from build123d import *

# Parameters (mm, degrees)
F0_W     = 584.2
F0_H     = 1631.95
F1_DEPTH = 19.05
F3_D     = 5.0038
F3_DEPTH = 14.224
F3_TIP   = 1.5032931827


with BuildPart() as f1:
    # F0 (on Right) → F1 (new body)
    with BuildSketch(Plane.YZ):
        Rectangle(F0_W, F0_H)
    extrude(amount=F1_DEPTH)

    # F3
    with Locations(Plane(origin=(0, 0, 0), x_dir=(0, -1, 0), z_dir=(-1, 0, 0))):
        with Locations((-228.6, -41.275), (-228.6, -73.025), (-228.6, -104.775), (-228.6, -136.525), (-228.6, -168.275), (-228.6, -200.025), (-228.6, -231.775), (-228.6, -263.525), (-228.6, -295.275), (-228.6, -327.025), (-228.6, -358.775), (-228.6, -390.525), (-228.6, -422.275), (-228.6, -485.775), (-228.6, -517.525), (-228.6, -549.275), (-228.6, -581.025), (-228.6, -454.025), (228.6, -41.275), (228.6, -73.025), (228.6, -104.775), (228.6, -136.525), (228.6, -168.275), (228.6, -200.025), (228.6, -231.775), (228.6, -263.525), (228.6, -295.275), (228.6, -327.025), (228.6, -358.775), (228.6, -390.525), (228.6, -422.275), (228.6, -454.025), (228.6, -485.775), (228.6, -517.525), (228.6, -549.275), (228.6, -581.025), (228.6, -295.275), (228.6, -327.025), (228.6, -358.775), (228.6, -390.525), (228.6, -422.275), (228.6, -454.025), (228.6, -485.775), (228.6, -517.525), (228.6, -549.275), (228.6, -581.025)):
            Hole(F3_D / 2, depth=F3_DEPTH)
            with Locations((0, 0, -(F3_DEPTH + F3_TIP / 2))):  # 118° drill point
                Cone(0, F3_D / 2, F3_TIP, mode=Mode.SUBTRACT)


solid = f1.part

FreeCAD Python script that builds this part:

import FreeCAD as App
import Part
import Sketcher
from FreeCAD import Vector
Q = App.Units.Quantity

doc = App.newDocument("Part")
body = doc.addObject("PartDesign::Body", "Body")

# Sketch on YZ plane
sketch1 = body.newObject("Sketcher::SketchObject", "Sketch")
sketch1.AttachmentSupport = (doc.getObject("YZ_Plane"), [""])
sketch1.MapMode = "FlatFace"
sketch1.addGeometry([
    Part.LineSegment(Vector(-292.1, 815.975, 0), Vector(-292.1, -815.975, 0)),
    Part.LineSegment(Vector(-292.1, -815.975, 0), Vector(292.1, -815.975, 0)),
    Part.LineSegment(Vector(292.1, -815.975, 0), Vector(292.1, 815.975, 0)),
    Part.LineSegment(Vector(292.1, 815.975, 0), Vector(-292.1, 815.975, 0)),
], False)
sketch1.addConstraint([
    Sketcher.Constraint("Coincident", 0, 2, 1, 1),
    Sketcher.Constraint("Coincident", 1, 2, 2, 1),
    Sketcher.Constraint("Coincident", 2, 2, 3, 1),
    Sketcher.Constraint("Coincident", 3, 2, 0, 1),
    Sketcher.Constraint("Vertical", 0),
    Sketcher.Constraint("Horizontal", 1),
    Sketcher.Constraint("Vertical", 2),
    Sketcher.Constraint("Horizontal", 3),
    Sketcher.Constraint("Symmetric", 0, 2, 2, 2, -1, 1),
    Sketcher.Constraint("DistanceX", 1, 1, 1, 2, Q("23 in")),
    Sketcher.Constraint("DistanceY", 0, 2, 0, 1, Q("64.25 in")),
])
pad1 = body.newObject("PartDesign::Pad", "Pad")
pad1.Profile = sketch1
pad1.Length = Q("0.75 in")

# Sketch on YZ plane
sketch2 = body.newObject("Sketcher::SketchObject", "Sketch001")
sketch2.AttachmentSupport = (doc.getObject("YZ_Plane"), [""])
sketch2.MapMode = "FlatFace"
sketch2.addGeometry([
    Part.Circle(Vector(228.6, -41.275, 0), Vector(0, 0, 1), 2.5019),  # 0
    Part.Circle(Vector(228.6, -73.025, 0), Vector(0, 0, 1), 2.5019),  # 1
    Part.Circle(Vector(228.6, -104.775, 0), Vector(0, 0, 1), 2.5019),  # 2
    Part.Circle(Vector(228.6, -136.525, 0), Vector(0, 0, 1), 2.5019),  # 3
    Part.Circle(Vector(228.6, -168.275, 0), Vector(0, 0, 1), 2.5019),  # 4
    Part.Circle(Vector(228.6, -200.025, 0), Vector(0, 0, 1), 2.5019),  # 5
    Part.Circle(Vector(228.6, -231.775, 0), Vector(0, 0, 1), 2.5019),  # 6
    Part.Circle(Vector(228.6, -263.525, 0), Vector(0, 0, 1), 2.5019),  # 7
    Part.Circle(Vector(228.6, -295.275, 0), Vector(0, 0, 1), 2.5019),  # 8
    Part.Circle(Vector(228.6, -327.025, 0), Vector(0, 0, 1), 2.5019),  # 9
    Part.Circle(Vector(228.6, -358.775, 0), Vector(0, 0, 1), 2.5019),  # 10
    Part.Circle(Vector(228.6, -390.525, 0), Vector(0, 0, 1), 2.5019),  # 11
    Part.Circle(Vector(228.6, -422.275, 0), Vector(0, 0, 1), 2.5019),  # 12
    Part.Circle(Vector(228.6, -485.775, 0), Vector(0, 0, 1), 2.5019),  # 13
    Part.Circle(Vector(228.6, -517.525, 0), Vector(0, 0, 1), 2.5019),  # 14
    Part.Circle(Vector(228.6, -549.275, 0), Vector(0, 0, 1), 2.5019),  # 15
    Part.Circle(Vector(228.6, -581.025, 0), Vector(0, 0, 1), 2.5019),  # 16
    Part.Circle(Vector(228.6, -454.025, 0), Vector(0, 0, 1), 2.5019),  # 17
    Part.Circle(Vector(-228.6, -41.275, 0), Vector(0, 0, 1), 2.5019),  # 18
    Part.Circle(Vector(-228.6, -73.025, 0), Vector(0, 0, 1), 2.5019),  # 19
    Part.Circle(Vector(-228.6, -104.775, 0), Vector(0, 0, 1), 2.5019),  # 20
    Part.Circle(Vector(-228.6, -136.525, 0), Vector(0, 0, 1), 2.5019),  # 21
    Part.Circle(Vector(-228.6, -168.275, 0), Vector(0, 0, 1), 2.5019),  # 22
    Part.Circle(Vector(-228.6, -200.025, 0), Vector(0, 0, 1), 2.5019),  # 23
    Part.Circle(Vector(-228.6, -231.775, 0), Vector(0, 0, 1), 2.5019),  # 24
    Part.Circle(Vector(-228.6, -263.525, 0), Vector(0, 0, 1), 2.5019),  # 25
    Part.Circle(Vector(-228.6, -295.275, 0), Vector(0, 0, 1), 2.5019),  # 26
    Part.Circle(Vector(-228.6, -327.025, 0), Vector(0, 0, 1), 2.5019),  # 27
    Part.Circle(Vector(-228.6, -358.775, 0), Vector(0, 0, 1), 2.5019),  # 28
    Part.Circle(Vector(-228.6, -390.525, 0), Vector(0, 0, 1), 2.5019),  # 29
    Part.Circle(Vector(-228.6, -422.275, 0), Vector(0, 0, 1), 2.5019),  # 30
    Part.Circle(Vector(-228.6, -454.025, 0), Vector(0, 0, 1), 2.5019),  # 31
    Part.Circle(Vector(-228.6, -485.775, 0), Vector(0, 0, 1), 2.5019),  # 32
    Part.Circle(Vector(-228.6, -517.525, 0), Vector(0, 0, 1), 2.5019),  # 33
    Part.Circle(Vector(-228.6, -549.275, 0), Vector(0, 0, 1), 2.5019),  # 34
    Part.Circle(Vector(-228.6, -581.025, 0), Vector(0, 0, 1), 2.5019),  # 35
    Part.Circle(Vector(-228.6, -295.275, 0), Vector(0, 0, 1), 2.5019),  # 36
    Part.Circle(Vector(-228.6, -327.025, 0), Vector(0, 0, 1), 2.5019),  # 37
    Part.Circle(Vector(-228.6, -358.775, 0), Vector(0, 0, 1), 2.5019),  # 38
    Part.Circle(Vector(-228.6, -390.525, 0), Vector(0, 0, 1), 2.5019),  # 39
    Part.Circle(Vector(-228.6, -422.275, 0), Vector(0, 0, 1), 2.5019),  # 40
    Part.Circle(Vector(-228.6, -454.025, 0), Vector(0, 0, 1), 2.5019),  # 41
    Part.Circle(Vector(-228.6, -485.775, 0), Vector(0, 0, 1), 2.5019),  # 42
    Part.Circle(Vector(-228.6, -517.525, 0), Vector(0, 0, 1), 2.5019),  # 43
    Part.Circle(Vector(-228.6, -549.275, 0), Vector(0, 0, 1), 2.5019),  # 44
    Part.Circle(Vector(-228.6, -581.025, 0), Vector(0, 0, 1), 2.5019),  # 45
], False)
sketch2.addConstraint([
    Sketcher.Constraint("Coincident", 36, 3, 26, 3),
    Sketcher.Constraint("Coincident", 37, 3, 27, 3),
    Sketcher.Constraint("Coincident", 38, 3, 28, 3),
    Sketcher.Constraint("Coincident", 39, 3, 29, 3),
    Sketcher.Constraint("Coincident", 40, 3, 30, 3),
    Sketcher.Constraint("Coincident", 41, 3, 31, 3),
    Sketcher.Constraint("Coincident", 42, 3, 32, 3),
    Sketcher.Constraint("Coincident", 43, 3, 33, 3),
    Sketcher.Constraint("Coincident", 44, 3, 34, 3),
    Sketcher.Constraint("Coincident", 45, 3, 35, 3),
    Sketcher.Constraint("Equal", 0, 1),
    Sketcher.Constraint("Equal", 1, 2),
    Sketcher.Constraint("Equal", 2, 3),
    Sketcher.Constraint("Equal", 3, 4),
    Sketcher.Constraint("Equal", 4, 5),
    Sketcher.Constraint("Equal", 5, 6),
    Sketcher.Constraint("Equal", 6, 7),
    Sketcher.Constraint("Equal", 7, 8),
    Sketcher.Constraint("Equal", 8, 9),
    Sketcher.Constraint("Equal", 9, 10),
    Sketcher.Constraint("Equal", 10, 11),
    Sketcher.Constraint("Equal", 11, 12),
    Sketcher.Constraint("Equal", 12, 13),
    Sketcher.Constraint("Equal", 13, 14),
    Sketcher.Constraint("Equal", 14, 15),
    Sketcher.Constraint("Equal", 15, 16),
    Sketcher.Constraint("Equal", 16, 17),
    Sketcher.Constraint("Equal", 17, 18),
    Sketcher.Constraint("Equal", 18, 19),
    Sketcher.Constraint("Equal", 19, 20),
    Sketcher.Constraint("Equal", 20, 21),
    Sketcher.Constraint("Equal", 21, 22),
    Sketcher.Constraint("Equal", 22, 23),
    Sketcher.Constraint("Equal", 23, 24),
    Sketcher.Constraint("Equal", 24, 25),
    Sketcher.Constraint("Equal", 25, 26),
    Sketcher.Constraint("Equal", 26, 27),
    Sketcher.Constraint("Equal", 27, 28),
    Sketcher.Constraint("Equal", 28, 29),
    Sketcher.Constraint("Equal", 29, 30),
    Sketcher.Constraint("Equal", 30, 31),
    Sketcher.Constraint("Equal", 31, 32),
    Sketcher.Constraint("Equal", 32, 33),
    Sketcher.Constraint("Equal", 33, 34),
    Sketcher.Constraint("Equal", 34, 35),
    Sketcher.Constraint("Equal", 35, 36),
    Sketcher.Constraint("Equal", 36, 37),
    Sketcher.Constraint("Equal", 37, 38),
    Sketcher.Constraint("Equal", 38, 39),
    Sketcher.Constraint("Equal", 39, 40),
    Sketcher.Constraint("Equal", 40, 41),
    Sketcher.Constraint("Equal", 41, 42),
    Sketcher.Constraint("Equal", 42, 43),
    Sketcher.Constraint("Equal", 43, 44),
    Sketcher.Constraint("Equal", 44, 45),
    Sketcher.Constraint("Symmetric", 0, 3, 18, 3, -2),
    Sketcher.Constraint("Symmetric", 1, 3, 19, 3, -2),
    Sketcher.Constraint("Symmetric", 2, 3, 20, 3, -2),
    Sketcher.Constraint("Symmetric", 3, 3, 21, 3, -2),
    Sketcher.Constraint("Symmetric", 4, 3, 22, 3, -2),
    Sketcher.Constraint("Symmetric", 5, 3, 23, 3, -2),
    Sketcher.Constraint("Symmetric", 6, 3, 24, 3, -2),
    Sketcher.Constraint("Symmetric", 7, 3, 25, 3, -2),
    Sketcher.Constraint("Symmetric", 8, 3, 26, 3, -2),
    Sketcher.Constraint("Symmetric", 9, 3, 27, 3, -2),
    Sketcher.Constraint("Symmetric", 10, 3, 28, 3, -2),
    Sketcher.Constraint("Symmetric", 11, 3, 29, 3, -2),
    Sketcher.Constraint("Symmetric", 12, 3, 30, 3, -2),
    Sketcher.Constraint("Symmetric", 17, 3, 31, 3, -2),
    Sketcher.Constraint("Symmetric", 13, 3, 32, 3, -2),
    Sketcher.Constraint("Symmetric", 14, 3, 33, 3, -2),
    Sketcher.Constraint("Symmetric", 15, 3, 34, 3, -2),
    Sketcher.Constraint("Symmetric", 16, 3, 35, 3, -2),
    Sketcher.Constraint("Vertical", 0, 3, 1, 3),
    Sketcher.Constraint("Vertical", 1, 3, 2, 3),
    Sketcher.Constraint("Vertical", 2, 3, 3, 3),
    Sketcher.Constraint("Vertical", 3, 3, 4, 3),
    Sketcher.Constraint("Vertical", 4, 3, 5, 3),
    Sketcher.Constraint("Vertical", 5, 3, 6, 3),
    Sketcher.Constraint("Vertical", 6, 3, 7, 3),
    Sketcher.Constraint("Vertical", 7, 3, 8, 3),
    Sketcher.Constraint("Vertical", 8, 3, 9, 3),
    Sketcher.Constraint("Vertical", 9, 3, 10, 3),
    Sketcher.Constraint("Vertical", 10, 3, 11, 3),
    Sketcher.Constraint("Vertical", 11, 3, 12, 3),
    Sketcher.Constraint("Vertical", 12, 3, 13, 3),
    Sketcher.Constraint("Vertical", 13, 3, 14, 3),
    Sketcher.Constraint("Vertical", 14, 3, 15, 3),
    Sketcher.Constraint("Vertical", 15, 3, 16, 3),
    Sketcher.Constraint("Vertical", 16, 3, 17, 3),
    Sketcher.Constraint("Diameter", 0, Q("0.197 in")),
    Sketcher.Constraint("DistanceX", -1, 1, 0, 3, Q("9 in")),
    Sketcher.Constraint("DistanceY", 4, 3, 0, 3, Q("5 in")),
    Sketcher.Constraint("DistanceY", 5, 3, 1, 3, Q("5 in")),
    Sketcher.Constraint("DistanceY", 6, 3, 2, 3, Q("5 in")),
    Sketcher.Constraint("DistanceY", 7, 3, 3, 3, Q("5 in")),
    Sketcher.Constraint("DistanceY", 8, 3, 4, 3, Q("5 in")),
    Sketcher.Constraint("DistanceY", 9, 3, 5, 3, Q("5 in")),
    Sketcher.Constraint("DistanceY", 10, 3, 6, 3, Q("5 in")),
    Sketcher.Constraint("DistanceY", 11, 3, 7, 3, Q("5 in")),
    Sketcher.Constraint("DistanceY", 12, 3, 8, 3, Q("5 in")),
    Sketcher.Constraint("DistanceY", 13, 3, 10, 3, Q("5 in")),
    Sketcher.Constraint("DistanceY", 14, 3, 11, 3, Q("5 in")),
    Sketcher.Constraint("DistanceY", 15, 3, 12, 3, Q("5 in")),
    Sketcher.Constraint("DistanceY", 31, 3, 27, 3, Q("5 in")),
    Sketcher.Constraint("DistanceY", 35, 3, 31, 3, Q("5 in")),
    Sketcher.Constraint("DistanceY", 2, 3, 0, 3, Q("2.5 in")),
    Sketcher.Constraint("DistanceY", 3, 3, 1, 3, Q("2.5 in")),
    Sketcher.Constraint("DistanceY", 1, 3, 0, 3, Q("1.25 in")),
    Sketcher.Constraint("DistanceY", 0, 3, -1, 1, Q("1.625 in")),
])
doc.recompute()
hole = body.newObject("PartDesign::Hole", "Hole")
hole.Profile = sketch2
hole.ThreadType = "None"
hole.Diameter = Q("0.197 in")
hole.DepthType = "Dimension"
hole.Depth = Q("0.56 in")
hole.DrillPoint = "Angled"
hole.DrillPointAngle = 118
hole.Reversed = True

doc.recompute()
